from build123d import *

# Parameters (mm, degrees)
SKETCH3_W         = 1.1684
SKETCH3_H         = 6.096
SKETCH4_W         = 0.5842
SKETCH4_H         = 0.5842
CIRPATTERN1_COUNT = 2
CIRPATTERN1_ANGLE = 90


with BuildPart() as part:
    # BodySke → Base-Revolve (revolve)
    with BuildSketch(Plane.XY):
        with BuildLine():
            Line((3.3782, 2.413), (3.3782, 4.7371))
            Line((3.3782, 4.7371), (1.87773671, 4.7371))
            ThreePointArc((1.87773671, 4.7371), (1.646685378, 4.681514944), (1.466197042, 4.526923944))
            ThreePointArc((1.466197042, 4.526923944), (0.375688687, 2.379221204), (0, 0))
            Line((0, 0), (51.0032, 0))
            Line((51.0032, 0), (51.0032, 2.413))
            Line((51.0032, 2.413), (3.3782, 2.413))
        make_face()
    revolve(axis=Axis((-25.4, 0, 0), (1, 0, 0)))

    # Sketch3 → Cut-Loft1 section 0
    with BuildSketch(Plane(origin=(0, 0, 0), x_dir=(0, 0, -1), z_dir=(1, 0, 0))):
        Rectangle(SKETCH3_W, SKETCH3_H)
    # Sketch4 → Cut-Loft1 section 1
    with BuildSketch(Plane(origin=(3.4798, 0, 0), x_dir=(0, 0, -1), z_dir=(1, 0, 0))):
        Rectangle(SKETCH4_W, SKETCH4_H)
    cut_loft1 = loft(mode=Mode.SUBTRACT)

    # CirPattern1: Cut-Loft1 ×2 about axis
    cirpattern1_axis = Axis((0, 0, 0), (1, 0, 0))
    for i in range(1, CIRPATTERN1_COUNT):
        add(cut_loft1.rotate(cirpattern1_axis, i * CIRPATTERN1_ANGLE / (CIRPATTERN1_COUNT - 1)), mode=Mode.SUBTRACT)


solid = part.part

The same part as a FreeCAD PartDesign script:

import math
import FreeCAD as App
import Part
import Sketcher

V = App.Vector
Q = App.Units.Quantity


def add_polygon(sketch, points):
    """Adds a closed chain of lines whose ends are joined by coincident constraints."""
    first, n = sketch.GeometryCount, len(points)
    for a, b in zip(points, points[1:] + points[:1]):
        sketch.addGeometry(Part.LineSegment(App.Vector(*a, 0), App.Vector(*b, 0)), False)
    for i in range(n):
        sketch.addConstraint(Sketcher.Constraint("Coincident", first + i, 2, first + (i + 1) % n, 1))

doc = App.newDocument("Part")
body = doc.addObject("PartDesign::Body", "Body")

# Sketch on XY plane
sketch1 = body.newObject("Sketcher::SketchObject", "Sketch")
sketch1.AttachmentSupport = (doc.getObject("XY_Plane"), [""])
sketch1.MapMode = "FlatFace"
sketch1.addGeometry([
    Part.LineSegment(V(3.38, 2.41, 0), V(3.38, 4.74, 0)),  # 0
    Part.LineSegment(V(3.38, 4.74, 0), V(1.88, 4.74, 0)),  # 1
    Part.ArcOfCircle(Part.Circle(V(1.88, 4.23, 0), V(0, 0, 1), 0.51), math.radians(90), math.radians(144)),  # 2
    Part.ArcOfCircle(Part.Circle(V(7.72, 0, 0), V(0, 0, 1), 7.72), math.radians(144), math.radians(180)),  # 3
    Part.LineSegment(V(0, 0, 0), V(51, 0, 0)),  # 4
    Part.LineSegment(V(51, 0, 0), V(51, 2.41, 0)),  # 5
    Part.LineSegment(V(51, 2.41, 0), V(3.38, 2.41, 0)),  # 6
], False)
sketch1.addConstraint([
    Sketcher.Constraint("Coincident", 0, 2, 1, 1),
    Sketcher.Constraint("Tangent", 1, 2, 2, 1),
    Sketcher.Constraint("Tangent", 2, 2, 3, 1),
    Sketcher.Constraint("Coincident", 3, 2, 4, 1),
    Sketcher.Constraint("Coincident", 4, 2, 5, 1),
    Sketcher.Constraint("Coincident", 5, 2, 6, 1),
    Sketcher.Constraint("Coincident", 6, 2, 0, 1),
    Sketcher.Constraint("Vertical", 0),
    Sketcher.Constraint("Horizontal", 1),
    Sketcher.Constraint("Horizontal", 4),
    Sketcher.Constraint("Vertical", 5),
    Sketcher.Constraint("Horizontal", 6),
    Sketcher.Constraint("Coincident", 3, 2, -1, 1),
    Sketcher.Constraint("PointOnObject", 3, 3, -1),
    Sketcher.Constraint("Radius", 2, Q("0.02 in")),
    Sketcher.Constraint("Radius", 3, Q("0.304 in")),
    Sketcher.Constraint("DistanceX", 4, 1, 4, 2, Q("2.008 in")),
    Sketcher.Constraint("DistanceX", 6, 2, 6, 1, Q("1.875 in")),
    Sketcher.Constraint("DistanceY", 5, 1, 5, 2, Q("0.095 in")),
    Sketcher.Constraint("DistanceY", 0, 1, 0, 2, Q("0.0915 in")),
])
revolution = body.newObject("PartDesign::Revolution", "Revolution")
revolution.Profile = sketch1
revolution.ReferenceAxis = (sketch1, ["H_Axis"])
revolution.Angle = 360

# Sketch on YZ plane
sketch2 = body.newObject("Sketcher::SketchObject", "Sketch001")
sketch2.AttachmentSupport = (doc.getObject("YZ_Plane"), [""])
sketch2.MapMode = "FlatFace"
add_polygon(sketch2, [(3, 0.6), (-3, 0.6), (-3, -0.6), (3, -0.6)])  # lines 0-3
sketch2.addConstraint([
    Sketcher.Constraint("Horizontal", 0),
    Sketcher.Constraint("Vertical", 1),
    Sketcher.Constraint("Horizontal", 2),
    Sketcher.Constraint("Vertical", 3),
    Sketcher.Constraint("Symmetric", 0, 2, 2, 2, -1, 1),
    Sketcher.Constraint("DistanceX", 0, 2, 0, 1, Q("0.24 in")),
    Sketcher.Constraint("DistanceY", 1, 2, 1, 1, Q("0.046 in")),
])

# Sketch on YZ plane
sketch3 = body.newObject("Sketcher::SketchObject", "Sketch002")
sketch3.AttachmentSupport = (doc.getObject("YZ_Plane"), [""])
sketch3.MapMode = "FlatFace"
sketch3.AttachmentOffset = App.Placement(V(0, 0, 0.137 * 25.4), App.Rotation())
add_polygon(sketch3, [(0.3, 0.3), (-0.3, 0.3), (-0.3, -0.3), (0.3, -0.3)])  # lines 0-3
sketch3.addConstraint([
    Sketcher.Constraint("Horizontal", 0),
    Sketcher.Constraint("Vertical", 1),
    Sketcher.Constraint("Horizontal", 2),
    Sketcher.Constraint("Vertical", 3),
    Sketcher.Constraint("Symmetric", 0, 2, 2, 2, -1, 1),
    Sketcher.Constraint("Equal", 2, 1),
    Sketcher.Constraint("DistanceX", 0, 2, 0, 1, Q("0.023 in")),
])

subtractiveloft = body.newObject("PartDesign::SubtractiveLoft", "SubtractiveLoft")
subtractiveloft.Profile = sketch2
subtractiveloft.Sections = [sketch3]
doc.recompute()

polarpattern = body.newObject("PartDesign::PolarPattern", "PolarPattern")
polarpattern.Originals = [subtractiveloft]
polarpattern.Axis = (doc.getObject("X_Axis"), [""])
polarpattern.Angle = 90
polarpattern.Occurrences = 2
body.Tip = polarpattern

doc.recompute()
